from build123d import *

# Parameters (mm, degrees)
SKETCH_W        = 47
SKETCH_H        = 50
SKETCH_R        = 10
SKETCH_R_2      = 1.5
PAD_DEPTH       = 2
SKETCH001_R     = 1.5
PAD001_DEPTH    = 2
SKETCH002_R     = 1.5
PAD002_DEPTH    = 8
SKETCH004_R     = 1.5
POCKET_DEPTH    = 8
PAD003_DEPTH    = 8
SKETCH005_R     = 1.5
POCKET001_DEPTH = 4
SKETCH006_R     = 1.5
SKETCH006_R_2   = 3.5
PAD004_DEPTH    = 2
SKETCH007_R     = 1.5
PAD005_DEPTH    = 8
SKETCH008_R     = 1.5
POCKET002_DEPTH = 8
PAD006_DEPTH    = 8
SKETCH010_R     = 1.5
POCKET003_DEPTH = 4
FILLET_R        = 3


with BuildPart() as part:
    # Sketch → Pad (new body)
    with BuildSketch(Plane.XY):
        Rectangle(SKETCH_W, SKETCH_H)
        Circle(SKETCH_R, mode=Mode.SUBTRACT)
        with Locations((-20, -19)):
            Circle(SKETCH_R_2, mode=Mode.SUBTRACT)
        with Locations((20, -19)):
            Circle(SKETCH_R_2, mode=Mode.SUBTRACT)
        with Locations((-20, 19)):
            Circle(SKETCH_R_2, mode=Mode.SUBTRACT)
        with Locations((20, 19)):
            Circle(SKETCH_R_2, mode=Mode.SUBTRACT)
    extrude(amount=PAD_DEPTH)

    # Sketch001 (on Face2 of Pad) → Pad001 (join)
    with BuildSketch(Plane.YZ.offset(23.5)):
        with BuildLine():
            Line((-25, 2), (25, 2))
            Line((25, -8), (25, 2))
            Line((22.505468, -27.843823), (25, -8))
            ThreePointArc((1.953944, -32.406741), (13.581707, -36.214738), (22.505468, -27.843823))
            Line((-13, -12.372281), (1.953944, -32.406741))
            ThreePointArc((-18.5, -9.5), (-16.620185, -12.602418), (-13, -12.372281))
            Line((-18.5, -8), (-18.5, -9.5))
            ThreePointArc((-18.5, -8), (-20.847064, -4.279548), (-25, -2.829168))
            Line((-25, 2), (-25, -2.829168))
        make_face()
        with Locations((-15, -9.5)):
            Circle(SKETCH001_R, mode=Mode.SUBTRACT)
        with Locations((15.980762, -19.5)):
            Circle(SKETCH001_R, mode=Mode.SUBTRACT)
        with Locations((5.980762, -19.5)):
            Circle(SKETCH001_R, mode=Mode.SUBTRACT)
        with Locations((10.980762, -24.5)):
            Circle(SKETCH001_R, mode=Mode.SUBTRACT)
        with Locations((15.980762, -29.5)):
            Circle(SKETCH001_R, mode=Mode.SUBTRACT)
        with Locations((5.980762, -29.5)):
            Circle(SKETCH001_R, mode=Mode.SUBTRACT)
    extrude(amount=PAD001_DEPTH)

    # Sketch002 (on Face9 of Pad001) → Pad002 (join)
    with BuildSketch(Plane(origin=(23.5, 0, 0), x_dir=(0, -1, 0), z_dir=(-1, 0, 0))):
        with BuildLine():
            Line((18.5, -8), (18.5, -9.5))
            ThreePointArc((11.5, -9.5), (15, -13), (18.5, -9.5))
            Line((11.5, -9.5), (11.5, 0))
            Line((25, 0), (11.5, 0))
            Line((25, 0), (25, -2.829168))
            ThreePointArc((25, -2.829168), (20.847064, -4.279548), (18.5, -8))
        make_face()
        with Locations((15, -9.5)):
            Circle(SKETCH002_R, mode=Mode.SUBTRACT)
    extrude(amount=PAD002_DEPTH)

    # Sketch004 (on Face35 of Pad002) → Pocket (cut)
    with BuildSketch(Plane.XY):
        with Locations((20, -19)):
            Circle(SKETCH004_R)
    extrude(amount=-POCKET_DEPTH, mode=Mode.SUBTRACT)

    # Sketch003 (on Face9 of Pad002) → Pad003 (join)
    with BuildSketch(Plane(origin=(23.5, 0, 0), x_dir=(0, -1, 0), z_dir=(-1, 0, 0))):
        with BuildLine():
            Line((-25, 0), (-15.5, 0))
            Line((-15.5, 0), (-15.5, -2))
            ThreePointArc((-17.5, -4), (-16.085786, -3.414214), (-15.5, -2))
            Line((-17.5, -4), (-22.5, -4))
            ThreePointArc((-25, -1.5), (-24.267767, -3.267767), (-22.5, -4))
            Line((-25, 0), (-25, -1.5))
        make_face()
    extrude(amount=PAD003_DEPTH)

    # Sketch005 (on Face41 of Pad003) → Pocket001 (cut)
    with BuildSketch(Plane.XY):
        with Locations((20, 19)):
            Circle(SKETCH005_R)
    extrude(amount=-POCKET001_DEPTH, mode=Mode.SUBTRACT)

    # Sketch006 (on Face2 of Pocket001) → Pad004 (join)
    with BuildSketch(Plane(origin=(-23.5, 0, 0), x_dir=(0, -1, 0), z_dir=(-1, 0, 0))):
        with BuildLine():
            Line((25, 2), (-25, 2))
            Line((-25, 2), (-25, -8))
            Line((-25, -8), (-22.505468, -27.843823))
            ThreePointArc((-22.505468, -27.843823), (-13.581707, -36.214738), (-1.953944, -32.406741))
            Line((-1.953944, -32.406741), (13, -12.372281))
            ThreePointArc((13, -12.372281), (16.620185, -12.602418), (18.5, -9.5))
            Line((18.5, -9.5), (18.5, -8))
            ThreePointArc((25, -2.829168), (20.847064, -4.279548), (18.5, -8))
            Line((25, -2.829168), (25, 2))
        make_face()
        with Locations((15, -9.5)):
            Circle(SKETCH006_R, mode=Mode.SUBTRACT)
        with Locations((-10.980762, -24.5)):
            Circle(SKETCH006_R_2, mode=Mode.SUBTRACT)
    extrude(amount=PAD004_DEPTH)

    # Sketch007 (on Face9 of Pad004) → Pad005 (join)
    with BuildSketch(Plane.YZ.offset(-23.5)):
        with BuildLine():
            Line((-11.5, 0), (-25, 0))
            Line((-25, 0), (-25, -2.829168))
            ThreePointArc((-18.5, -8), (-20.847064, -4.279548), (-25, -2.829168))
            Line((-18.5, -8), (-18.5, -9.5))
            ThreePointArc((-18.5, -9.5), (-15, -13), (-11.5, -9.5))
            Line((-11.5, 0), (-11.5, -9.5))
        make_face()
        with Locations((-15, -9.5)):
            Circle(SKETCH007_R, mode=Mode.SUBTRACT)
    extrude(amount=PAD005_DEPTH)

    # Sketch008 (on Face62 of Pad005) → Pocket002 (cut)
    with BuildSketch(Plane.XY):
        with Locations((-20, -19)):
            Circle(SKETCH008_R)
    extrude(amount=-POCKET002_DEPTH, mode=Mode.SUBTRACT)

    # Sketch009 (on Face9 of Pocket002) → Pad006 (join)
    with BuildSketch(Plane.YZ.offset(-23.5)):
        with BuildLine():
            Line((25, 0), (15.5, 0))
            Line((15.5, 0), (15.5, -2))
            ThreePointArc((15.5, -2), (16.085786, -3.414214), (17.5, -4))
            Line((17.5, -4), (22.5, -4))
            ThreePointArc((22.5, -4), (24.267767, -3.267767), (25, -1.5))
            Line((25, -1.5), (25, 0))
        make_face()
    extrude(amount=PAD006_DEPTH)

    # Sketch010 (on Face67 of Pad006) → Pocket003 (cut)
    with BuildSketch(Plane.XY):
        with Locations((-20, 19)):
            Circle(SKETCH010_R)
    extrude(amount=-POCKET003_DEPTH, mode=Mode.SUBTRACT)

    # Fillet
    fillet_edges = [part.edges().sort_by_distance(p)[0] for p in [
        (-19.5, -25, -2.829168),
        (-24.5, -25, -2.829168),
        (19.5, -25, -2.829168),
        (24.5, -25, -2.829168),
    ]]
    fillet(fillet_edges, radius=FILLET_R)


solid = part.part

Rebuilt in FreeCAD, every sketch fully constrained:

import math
import FreeCAD as App
import Part
import Sketcher
from FreeCAD import Vector


def edges_at(feature, points):
    """Names of the edges that pass closest to the given points."""
    edges = feature.Shape.Edges
    near = lambda p: min(range(len(edges)), key=lambda i: edges[i].distToShape(Part.Vertex(*p))[0])
    return sorted({f"Edge{near(p) + 1}" for p in points})

doc = App.newDocument("Part")
body = doc.addObject("PartDesign::Body", "Body")

# Sketch on XY plane
sketch1 = doc.addObject("Sketcher::SketchObject", "Sketch")
body.addObject(sketch1)
sketch1.AttachmentSupport = (doc.XY_Plane, [""])
sketch1.MapMode = "FlatFace"
sketch1.addGeometry([
    Part.LineSegment(Vector(-23.5, 25, 0), Vector(-23.5, -25, 0)),  # 0
    Part.LineSegment(Vector(-23.5, -25, 0), Vector(23.5, -25, 0)),  # 1
    Part.LineSegment(Vector(23.5, -25, 0), Vector(23.5, 25, 0)),  # 2
    Part.LineSegment(Vector(23.5, 25, 0), Vector(-23.5, 25, 0)),  # 3
    Part.Circle(Vector(-20, -19, 0), Vector(0, 0, 1), 1.5),  # 4
    Part.Circle(Vector(20, -19, 0), Vector(0, 0, 1), 1.5),  # 5
    Part.Circle(Vector(-20, 19, 0), Vector(0, 0, 1), 1.5),  # 6
    Part.Circle(Vector(0, 0, 0), Vector(0, 0, 1), 10),  # 7
    Part.Circle(Vector(20, 19, 0), Vector(0, 0, 1), 1.5),  # 8
], False)
sketch1.addConstraint([
    Sketcher.Constraint("Coincident", 0, 2, 1, 1),
    Sketcher.Constraint("Coincident", 1, 2, 2, 1),
    Sketcher.Constraint("Coincident", 2, 2, 3, 1),
    Sketcher.Constraint("Coincident", 3, 2, 0, 1),
    Sketcher.Constraint("Vertical", 0),
    Sketcher.Constraint("Horizontal", 1),
    Sketcher.Constraint("Vertical", 2),
    Sketcher.Constraint("Horizontal", 3),
    Sketcher.Constraint("Coincident", 7, 3, -1, 1),
    Sketcher.Constraint("Equal", 4, 5),
    Sketcher.Constraint("Equal", 5, 6),
    Sketcher.Constraint("Equal", 6, 8),
    Sketcher.Constraint("Symmetric", 5, 3, 6, 3, -1, 1),
    Sketcher.Constraint("Symmetric", 4, 3, 8, 3, -1, 1),
    Sketcher.Constraint("Symmetric", 0, 2, 2, 2, -1, 1),
    Sketcher.Constraint("Symmetric", 4, 3, 5, 3, -2),
    Sketcher.Constraint("Diameter", 4, 3.0),
    Sketcher.Constraint("Diameter", 7, 20.0),
    Sketcher.Constraint("DistanceX", 1, 1, 1, 2, 47.0),
    Sketcher.Constraint("DistanceY", 0, 2, 0, 1, 50.0),
    Sketcher.Constraint("DistanceX", 4, 3, -1, 1, 20.0),
    Sketcher.Constraint("DistanceY", 4, 3, -1, 1, 19.0),
])
pad1 = doc.addObject("PartDesign::Pad", "Pad")
body.addObject(pad1)
pad1.Profile = sketch1
pad1.Length = 2

# Sketch on YZ plane
sketch2 = doc.addObject("Sketcher::SketchObject", "Sketch001")
body.addObject(sketch2)
sketch2.AttachmentSupport = (doc.YZ_Plane, [""])
sketch2.MapMode = "FlatFace"
sketch2.AttachmentOffset = App.Placement(Vector(0, 0, 23.5), App.Rotation())
sketch2.addGeometry([
    Part.LineSegment(Vector(25, 2, 0), Vector(-25, 2, 0)),  # 0
    Part.LineSegment(Vector(-25, 2, 0), Vector(-25, -2.8, 0)),  # 1
    Part.ArcOfCircle(Part.Circle(Vector(-25, -9.5, 0), Vector(0, 0, 1), 6.7), math.radians(13), math.radians(90)),  # 2
    Part.LineSegment(Vector(-18.5, -8, 0), Vector(-18.5, -9.5, 0)),  # 3
    Part.ArcOfCircle(Part.Circle(Vector(-15, -9.5, 0), Vector(0, 0, 1), 3.5), math.radians(-180), math.radians(-55)),  # 4
    Part.LineSegment(Vector(-13, -12.4, 0), Vector(2, -32.4, 0)),  # 5
    Part.ArcOfCircle(Part.Circle(Vector(11, -24.5, 0), Vector(0, 0, 1), 12), math.radians(-139), math.radians(-16)),  # 6
    Part.LineSegment(Vector(22.5, -27.8, 0), Vector(25, -8, 0)),  # 7
    Part.LineSegment(Vector(25, -8, 0), Vector(25, 2, 0)),  # 8
    Part.Circle(Vector(16, -29.5, 0), Vector(0, 0, 1), 1.5),  # 9
    Part.Circle(Vector(6, -29.5, 0), Vector(0, 0, 1), 1.5),  # 10
    Part.Circle(Vector(11, -24.5, 0), Vector(0, 0, 1), 1.5),  # 11
    Part.Circle(Vector(16, -19.5, 0), Vector(0, 0, 1), 1.5),  # 12
    Part.Circle(Vector(6, -19.5, 0), Vector(0, 0, 1), 1.5),  # 13
    Part.Circle(Vector(-15, -9.5, 0), Vector(0, 0, 1), 1.5),  # 14
], False)
sketch2.addConstraint([
    Sketcher.Constraint("Coincident", 0, 2, 1, 1),
    Sketcher.Constraint("Coincident", 1, 2, 2, 2),
    Sketcher.Constraint("Coincident", 2, 1, 3, 1),
    Sketcher.Constraint("Tangent", 3, 2, 4, 1),
    Sketcher.Constraint("Coincident", 4, 2, 5, 1),
    Sketcher.Constraint("Coincident", 5, 2, 6, 1),
    Sketcher.Constraint("Coincident", 6, 2, 7, 1),
    Sketcher.Constraint("Coincident", 7, 2, 8, 1),
    Sketcher.Constraint("Coincident", 8, 2, 0, 1),
    Sketcher.Constraint("Horizontal", 0),
    Sketcher.Constraint("Vertical", 1),
    Sketcher.Constraint("Vertical", 3),
    Sketcher.Constraint("Vertical", 8),
    Sketcher.Constraint("Coincident", 11, 3, 6, 3),
    Sketcher.Constraint("Coincident", 14, 3, 4, 3),
    Sketcher.Constraint("Equal", 9, 10),
    Sketcher.Constraint("Equal", 10, 11),
    Sketcher.Constraint("Equal", 11, 12),
    Sketcher.Constraint("Equal", 12, 13),
    Sketcher.Constraint("Equal", 13, 14),
    Sketcher.Constraint("Horizontal", 2, 3, 4, 3),
    Sketcher.Constraint("Horizontal", 9, 3, 10, 3),
    Sketcher.Constraint("Horizontal", 12, 3, 13, 3),
    Sketcher.Constraint("Horizontal", 2, 1, 7, 2),
    Sketcher.Constraint("Vertical", 9, 3, 12, 3),
    Sketcher.Constraint("Vertical", 10, 3, 13, 3),
    Sketcher.Constraint("Vertical", 2, 3, 0, 2),
    Sketcher.Constraint("Diameter", 9, 3.0),
    Sketcher.Constraint("Radius", 6, 12.0),
    Sketcher.Constraint("Radius", 4, 3.5),
    Sketcher.Constraint("DistanceX", 0, 2, 0, 1, 50.0),
    Sketcher.Constraint("DistanceY", 8, 1, 8, 2, 10.0),
    Sketcher.Constraint("Distance", 5, 25.000001),
    Sketcher.Constraint("Distance", 7, 20.0),
    Sketcher.Constraint("DistanceY", 3, 2, 3, 1, 1.5),
    Sketcher.Constraint("DistanceX", 2, 3, -1, 1, 25.000001),
    Sketcher.Constraint("DistanceX", 4, 3, -1, 1, 15.0),
    Sketcher.Constraint("DistanceY", -1, 1, 0, 2, 2.0),
    Sketcher.Constraint("DistanceX", 4, 2, -1, 1, 13.0),
    Sketcher.Constraint("DistanceY", 6, 3, 4, 3, 15.000001),
    Sketcher.Constraint("DistanceX", 6, 3, 9, 3, 5.0),
    Sketcher.Constraint("DistanceY", 9, 3, 6, 3, 5.0),
    Sketcher.Constraint("DistanceX", 10, 3, 6, 3, 5.0),
    Sketcher.Constraint("DistanceY", 11, 3, 12, 3, 5.0),
    Sketcher.Constraint("DistanceY", 5, 2, -1, 1, 32.406741),
])
pad2 = doc.addObject("PartDesign::Pad", "Pad001")
body.addObject(pad2)
pad2.Profile = sketch2
pad2.Length = 2

# Sketch on YZ plane
sketch3 = doc.addObject("Sketcher::SketchObject", "Sketch002")
body.addObject(sketch3)
sketch3.AttachmentSupport = (doc.YZ_Plane, [""])
sketch3.MapMode = "FlatFace"
sketch3.AttachmentOffset = App.Placement(Vector(0, 0, 23.5), App.Rotation())
sketch3.addGeometry([
    Part.LineSegment(Vector(-18.5, -9.5, 0), Vector(-18.5, -8, 0)),  # 0
    Part.ArcOfCircle(Part.Circle(Vector(-25, -9.5, 0), Vector(0, 0, 1), 6.7), math.radians(13), math.radians(90)),  # 1
    Part.LineSegment(Vector(-25, -2.8, 0), Vector(-25, 0, 0)),  # 2
    Part.LineSegment(Vector(-25, 0, 0), Vector(-11.5, 0, 0)),  # 3
    Part.LineSegment(Vector(-11.5, 0, 0), Vector(-11.5, -9.5, 0)),  # 4
    Part.ArcOfCircle(Part.Circle(Vector(-15, -9.5, 0), Vector(0, 0, 1), 3.5), math.radians(180), math.radians(360)),  # 5
    Part.Circle(Vector(-15, -9.5, 0), Vector(0, 0, 1), 1.5),  # 6
], False)
sketch3.addConstraint([
    Sketcher.Constraint("Coincident", 0, 2, 1, 1),
    Sketcher.Constraint("Coincident", 1, 2, 2, 1),
    Sketcher.Constraint("Coincident", 2, 2, 3, 1),
    Sketcher.Constraint("Coincident", 3, 2, 4, 1),
    Sketcher.Constraint("Tangent", 4, 2, 5, 2),
    Sketcher.Constraint("Tangent", 5, 1, 0, 1),
    Sketcher.Constraint("Vertical", 0),
    Sketcher.Constraint("Vertical", 2),
    Sketcher.Constraint("Horizontal", 3),
    Sketcher.Constraint("Vertical", 4),
    Sketcher.Constraint("Coincident", 6, 3, 5, 3),
    Sketcher.Constraint("PointOnObject", 2, 2, -1),
    Sketcher.Constraint("Horizontal", 1, 3, 5, 3),
    Sketcher.Constraint("Diameter", 6, 3.0),
    Sketcher.Constraint("Radius", 5, 3.5),
    Sketcher.Constraint("DistanceX", 3, 1, 3, 2, 13.5),
    Sketcher.Constraint("DistanceY", 0, 1, 0, 2, 1.5),
    Sketcher.Constraint("DistanceY", 4, 2, 4, 1, 9.5),
    Sketcher.Constraint("DistanceX", 1, 3, -1, 1, 25.000001),
    Sketcher.Constraint("DistanceX", 5, 3, -1, 1, 15.0),
])
pad3 = doc.addObject("PartDesign::Pad", "Pad002")
body.addObject(pad3)
pad3.Profile = sketch3
pad3.Length = 8
pad3.Reversed = True

# Sketch on XY plane
sketch4 = doc.addObject("Sketcher::SketchObject", "Sketch003")
body.addObject(sketch4)
sketch4.AttachmentSupport = (doc.XY_Plane, [""])
sketch4.MapMode = "FlatFace"
sketch4.addGeometry(Part.Circle(Vector(20, -19, 0), Vector(0, 0, 1), 1.5), False)
sketch4.addConstraint([
    Sketcher.Constraint("Diameter", 0, 3.0),
    Sketcher.Constraint("DistanceX", -1, 1, 0, 3, 20.0),
    Sketcher.Constraint("DistanceY", 0, 3, -1, 1, 19.0),
])
pocket1 = doc.addObject("PartDesign::Pocket", "Pocket")
body.addObject(pocket1)
pocket1.Profile = sketch4
pocket1.Length = 8

# Sketch on YZ plane
sketch5 = doc.addObject("Sketcher::SketchObject", "Sketch004")
body.addObject(sketch5)
sketch5.AttachmentSupport = (doc.YZ_Plane, [""])
sketch5.MapMode = "FlatFace"
sketch5.AttachmentOffset = App.Placement(Vector(0, 0, 23.5), App.Rotation())
sketch5.addGeometry([
    Part.LineSegment(Vector(15.5, 0, 0), Vector(25, 0, 0)),  # 0
    Part.LineSegment(Vector(25, 0, 0), Vector(25, -1.5, 0)),  # 1
    Part.ArcOfCircle(Part.Circle(Vector(22.5, -1.5, 0), Vector(0, 0, 1), 2.5), math.radians(-90), math.radians(0)),  # 2
    Part.LineSegment(Vector(22.5, -4, 0), Vector(17.5, -4, 0)),  # 3
    Part.ArcOfCircle(Part.Circle(Vector(17.5, -2, 0), Vector(0, 0, 1), 2), math.radians(180), math.radians(270)),  # 4
    Part.LineSegment(Vector(15.5, -2, 0), Vector(15.5, 0, 0)),  # 5
], False)
sketch5.addConstraint([
    Sketcher.Constraint("Coincident", 0, 2, 1, 1),
    Sketcher.Constraint("Tangent", 1, 2, 2, 2),
    Sketcher.Constraint("Tangent", 2, 1, 3, 1),
    Sketcher.Constraint("Tangent", 3, 2, 4, 2),
    Sketcher.Constraint("Tangent", 4, 1, 5, 1),
    Sketcher.Constraint("Coincident", 5, 2, 0, 1),
    Sketcher.Constraint("Horizontal", 0),
    Sketcher.Constraint("Vertical", 1),
    Sketcher.Constraint("Horizontal", 3),
    Sketcher.Constraint("Vertical", 5),
    Sketcher.Constraint("PointOnObject", 0, 2, -1),
    Sketcher.Constraint("Radius", 4, 1.999999),
    Sketcher.Constraint("Radius", 2, 2.5),
    Sketcher.Constraint("DistanceX", 3, 2, 3, 1, 5.0),
    Sketcher.Constraint("DistanceY", 5, 1, 5, 2, 2.0),
    Sketcher.Constraint("DistanceX", -1, 1, 0, 2, 25.0),
])
pad4 = doc.addObject("PartDesign::Pad", "Pad003")
body.addObject(pad4)
pad4.Profile = sketch5
pad4.Length = 8
pad4.Reversed = True

# Sketch on XY plane
sketch6 = doc.addObject("Sketcher::SketchObject", "Sketch005")
body.addObject(sketch6)
sketch6.AttachmentSupport = (doc.XY_Plane, [""])
sketch6.MapMode = "FlatFace"
sketch6.addGeometry(Part.Circle(Vector(20, 19, 0), Vector(0, 0, 1), 1.5), False)
sketch6.addConstraint([
    Sketcher.Constraint("Diameter", 0, 3.0),
    Sketcher.Constraint("DistanceX", -1, 1, 0, 3, 20.0),
    Sketcher.Constraint("DistanceY", -1, 1, 0, 3, 19.0),
])
pocket2 = doc.addObject("PartDesign::Pocket", "Pocket001")
body.addObject(pocket2)
pocket2.Profile = sketch6
pocket2.Length = 4

# Sketch on YZ plane
sketch7 = doc.addObject("Sketcher::SketchObject", "Sketch006")
body.addObject(sketch7)
sketch7.AttachmentSupport = (doc.YZ_Plane, [""])
sketch7.MapMode = "FlatFace"
sketch7.AttachmentOffset = App.Placement(Vector(0, 0, -23.5), App.Rotation())
sketch7.addGeometry([
    Part.LineSegment(Vector(-25, 2, 0), Vector(25, 2, 0)),  # 0
    Part.LineSegment(Vector(25, 2, 0), Vector(25, -8, 0)),  # 1
    Part.LineSegment(Vector(25, -8, 0), Vector(22.5, -27.8, 0)),  # 2
    Part.ArcOfCircle(Part.Circle(Vector(11, -24.5, 0), Vector(0, 0, 1), 12), math.radians(-139), math.radians(-16)),  # 3
    Part.LineSegment(Vector(2, -32.4, 0), Vector(-13, -12.4, 0)),  # 4
    Part.ArcOfCircle(Part.Circle(Vector(-15, -9.5, 0), Vector(0, 0, 1), 3.5), math.radians(-180), math.radians(-55)),  # 5
    Part.LineSegment(Vector(-18.5, -9.5, 0), Vector(-18.5, -8, 0)),  # 6
    Part.ArcOfCircle(Part.Circle(Vector(-25, -9.5, 0), Vector(0, 0, 1), 6.7), math.radians(13), math.radians(90)),  # 7
    Part.LineSegment(Vector(-25, -2.8, 0), Vector(-25, 2, 0)),  # 8
    Part.Circle(Vector(11, -24.5, 0), Vector(0, 0, 1), 3.5),  # 9
    Part.Circle(Vector(-15, -9.5, 0), Vector(0, 0, 1), 1.5),  # 10
], False)
sketch7.addConstraint([
    Sketcher.Constraint("Coincident", 0, 2, 1, 1),
    Sketcher.Constraint("Coincident", 1, 2, 2, 1),
    Sketcher.Constraint("Coincident", 2, 2, 3, 2),
    Sketcher.Constraint("Coincident", 3, 1, 4, 1),
    Sketcher.Constraint("Coincident", 4, 2, 5, 2),
    Sketcher.Constraint("Tangent", 5, 1, 6, 1),
    Sketcher.Constraint("Coincident", 6, 2, 7, 1),
    Sketcher.Constraint("Coincident", 7, 2, 8, 1),
    Sketcher.Constraint("Coincident", 8, 2, 0, 1),
    Sketcher.Constraint("Horizontal", 0),
    Sketcher.Constraint("Vertical", 1),
    Sketcher.Constraint("Vertical", 6),
    Sketcher.Constraint("Vertical", 8),
    Sketcher.Constraint("Coincident", 9, 3, 3, 3),
    Sketcher.Constraint("Coincident", 10, 3, 5, 3),
    Sketcher.Constraint("Equal", 5, 9),
    Sketcher.Constraint("Horizontal", 5, 3, 7, 3),
    Sketcher.Constraint("Horizontal", 1, 2, 6, 2),
    Sketcher.Constraint("Diameter", 9, 7.0),
    Sketcher.Constraint("Diameter", 10, 3.0),
    Sketcher.Constraint("Radius", 3, 12.0),
    Sketcher.Constraint("DistanceX", 0, 1, 0, 2, 50.0),
    Sketcher.Constraint("DistanceY", 1, 2, 1, 1, 10.0),
    Sketcher.Constraint("Distance", 2, 20.0),
    Sketcher.Constraint("Distance", 4, 25.000001),
    Sketcher.Constraint("DistanceY", 6, 1, 6, 2, 1.5),
    Sketcher.Constraint("DistanceX", 5, 3, -1, 1, 15.0),
    Sketcher.Constraint("DistanceX", 7, 3, -1, 1, 25.000001),
    Sketcher.Constraint("DistanceX", -1, 1, 0, 2, 25.0),
    Sketcher.Constraint("DistanceY", -1, 1, 0, 2, 2.0),
    Sketcher.Constraint("DistanceX", 4, 2, -1, 1, 13.0),
    Sketcher.Constraint("DistanceY", 3, 3, 5, 3, 15.000001),
    Sketcher.Constraint("DistanceX", -1, 1, 2, 2, 22.505468),
])
pad5 = doc.addObject("PartDesign::Pad", "Pad004")
body.addObject(pad5)
pad5.Profile = sketch7
pad5.Length = 2
pad5.Reversed = True

# Sketch on YZ plane
sketch8 = doc.addObject("Sketcher::SketchObject", "Sketch007")
body.addObject(sketch8)
sketch8.AttachmentSupport = (doc.YZ_Plane, [""])
sketch8.MapMode = "FlatFace"
sketch8.AttachmentOffset = App.Placement(Vector(0, 0, -23.5), App.Rotation())
sketch8.addGeometry([
    Part.LineSegment(Vector(-11.5, 0, 0), Vector(-25, 0, 0)),  # 0
    Part.LineSegment(Vector(-25, 0, 0), Vector(-25, -2.8, 0)),  # 1
    Part.ArcOfCircle(Part.Circle(Vector(-25, -9.5, 0), Vector(0, 0, 1), 6.7), math.radians(13), math.radians(90)),  # 2
    Part.LineSegment(Vector(-18.5, -8, 0), Vector(-18.5, -9.5, 0)),  # 3
    Part.ArcOfCircle(Part.Circle(Vector(-15, -9.5, 0), Vector(0, 0, 1), 3.5), math.radians(180), math.radians(360)),  # 4
    Part.LineSegment(Vector(-11.5, -9.5, 0), Vector(-11.5, 0, 0)),  # 5
    Part.Circle(Vector(-15, -9.5, 0), Vector(0, 0, 1), 1.5),  # 6
], False)
sketch8.addConstraint([
    Sketcher.Constraint("Coincident", 0, 2, 1, 1),
    Sketcher.Constraint("Coincident", 1, 2, 2, 2),
    Sketcher.Constraint("Coincident", 2, 1, 3, 1),
    Sketcher.Constraint("Tangent", 3, 2, 4, 1),
    Sketcher.Constraint("Tangent", 4, 2, 5, 1),
    Sketcher.Constraint("Coincident", 5, 2, 0, 1),
    Sketcher.Constraint("Horizontal", 0),
    Sketcher.Constraint("Vertical", 1),
    Sketcher.Constraint("Vertical", 3),
    Sketcher.Constraint("Vertical", 5),
    Sketcher.Constraint("Coincident", 6, 3, 4, 3),
    Sketcher.Constraint("PointOnObject", 0, 2, -1),
    Sketcher.Constraint("Horizontal", 2, 3, 4, 3),
    Sketcher.Constraint("Vertical", 2, 3, 0, 2),
    Sketcher.Constraint("Diameter", 6, 3.0),
    Sketcher.Constraint("Radius", 4, 3.5),
    Sketcher.Constraint("DistanceX", 0, 2, 0, 1, 13.5),
    Sketcher.Constraint("DistanceY", 3, 2, 3, 1, 1.5),
    Sketcher.Constraint("DistanceY", 5, 1, 5, 2, 9.5),
    Sketcher.Constraint("DistanceX", 2, 3, -1, 1, 25.000001),
])
pad6 = doc.addObject("PartDesign::Pad", "Pad005")
body.addObject(pad6)
pad6.Profile = sketch8
pad6.Length = 8

# Sketch on XY plane
sketch9 = doc.addObject("Sketcher::SketchObject", "Sketch008")
body.addObject(sketch9)
sketch9.AttachmentSupport = (doc.XY_Plane, [""])
sketch9.MapMode = "FlatFace"
sketch9.addGeometry(Part.Circle(Vector(-20, -19, 0), Vector(0, 0, 1), 1.5), False)
sketch9.addConstraint([
    Sketcher.Constraint("Diameter", 0, 3.0),
    Sketcher.Constraint("DistanceX", 0, 3, -1, 1, 20.0),
    Sketcher.Constraint("DistanceY", 0, 3, -1, 1, 19.0),
])
pocket3 = doc.addObject("PartDesign::Pocket", "Pocket002")
body.addObject(pocket3)
pocket3.Profile = sketch9
pocket3.Length = 8

# Sketch on YZ plane
sketch10 = doc.addObject("Sketcher::SketchObject", "Sketch009")
body.addObject(sketch10)
sketch10.AttachmentSupport = (doc.YZ_Plane, [""])
sketch10.MapMode = "FlatFace"
sketch10.AttachmentOffset = App.Placement(Vector(0, 0, -23.5), App.Rotation())
sketch10.addGeometry([
    Part.LineSegment(Vector(25, 0, 0), Vector(15.5, 0, 0)),  # 0
    Part.LineSegment(Vector(15.5, 0, 0), Vector(15.5, -2, 0)),  # 1
    Part.ArcOfCircle(Part.Circle(Vector(17.5, -2, 0), Vector(0, 0, 1), 2), math.radians(180), math.radians(270)),  # 2
    Part.LineSegment(Vector(17.5, -4, 0), Vector(22.5, -4, 0)),  # 3
    Part.ArcOfCircle(Part.Circle(Vector(22.5, -1.5, 0), Vector(0, 0, 1), 2.5), math.radians(-90), math.radians(0)),  # 4
    Part.LineSegment(Vector(25, -1.5, 0), Vector(25, 0, 0)),  # 5
], False)
sketch10.addConstraint([
    Sketcher.Constraint("Coincident", 0, 2, 1, 1),
    Sketcher.Constraint("Tangent", 1, 2, 2, 1),
    Sketcher.Constraint("Tangent", 2, 2, 3, 1),
    Sketcher.Constraint("Tangent", 3, 2, 4, 1),
    Sketcher.Constraint("Tangent", 4, 2, 5, 1),
    Sketcher.Constraint("Coincident", 5, 2, 0, 1),
    Sketcher.Constraint("Horizontal", 0),
    Sketcher.Constraint("Vertical", 1),
    Sketcher.Constraint("Horizontal", 3),
    Sketcher.Constraint("Vertical", 5),
    Sketcher.Constraint("PointOnObject", 0, 2, -1),
    Sketcher.Constraint("Radius", 2, 1.999999),
    Sketcher.Constraint("Radius", 4, 2.5),
    Sketcher.Constraint("DistanceX", 3, 1, 3, 2, 5.0),
    Sketcher.Constraint("DistanceY", 1, 2, 1, 1, 2.0),
    Sketcher.Constraint("DistanceX", -1, 1, 4, 2, 25.0),
])
pad7 = doc.addObject("PartDesign::Pad", "Pad006")
body.addObject(pad7)
pad7.Profile = sketch10
pad7.Length = 8

# Sketch on XY plane
sketch11 = doc.addObject("Sketcher::SketchObject", "Sketch010")
body.addObject(sketch11)
sketch11.AttachmentSupport = (doc.XY_Plane, [""])
sketch11.MapMode = "FlatFace"
sketch11.addGeometry(Part.Circle(Vector(-20, 19, 0), Vector(0, 0, 1), 1.5), False)
sketch11.addConstraint([
    Sketcher.Constraint("Diameter", 0, 3.0),
    Sketcher.Constraint("DistanceX", 0, 3, -1, 1, 20.0),
    Sketcher.Constraint("DistanceY", -1, 1, 0, 3, 19.0),
])
pocket4 = doc.addObject("PartDesign::Pocket", "Pocket003")
body.addObject(pocket4)
pocket4.Profile = sketch11
pocket4.Length = 4
doc.recompute()

fillet = doc.addObject("PartDesign::Fillet", "Fillet")
body.addObject(fillet)
fillet.Base = (pocket4, edges_at(pocket4, [
    (-19.5, -25, -2.829),
    (-24.5, -25, -2.829),
    (20.5, -25, -2.829),
    (20.5, -25, -2.829),
]))
fillet.Radius = 3

doc.recompute()
